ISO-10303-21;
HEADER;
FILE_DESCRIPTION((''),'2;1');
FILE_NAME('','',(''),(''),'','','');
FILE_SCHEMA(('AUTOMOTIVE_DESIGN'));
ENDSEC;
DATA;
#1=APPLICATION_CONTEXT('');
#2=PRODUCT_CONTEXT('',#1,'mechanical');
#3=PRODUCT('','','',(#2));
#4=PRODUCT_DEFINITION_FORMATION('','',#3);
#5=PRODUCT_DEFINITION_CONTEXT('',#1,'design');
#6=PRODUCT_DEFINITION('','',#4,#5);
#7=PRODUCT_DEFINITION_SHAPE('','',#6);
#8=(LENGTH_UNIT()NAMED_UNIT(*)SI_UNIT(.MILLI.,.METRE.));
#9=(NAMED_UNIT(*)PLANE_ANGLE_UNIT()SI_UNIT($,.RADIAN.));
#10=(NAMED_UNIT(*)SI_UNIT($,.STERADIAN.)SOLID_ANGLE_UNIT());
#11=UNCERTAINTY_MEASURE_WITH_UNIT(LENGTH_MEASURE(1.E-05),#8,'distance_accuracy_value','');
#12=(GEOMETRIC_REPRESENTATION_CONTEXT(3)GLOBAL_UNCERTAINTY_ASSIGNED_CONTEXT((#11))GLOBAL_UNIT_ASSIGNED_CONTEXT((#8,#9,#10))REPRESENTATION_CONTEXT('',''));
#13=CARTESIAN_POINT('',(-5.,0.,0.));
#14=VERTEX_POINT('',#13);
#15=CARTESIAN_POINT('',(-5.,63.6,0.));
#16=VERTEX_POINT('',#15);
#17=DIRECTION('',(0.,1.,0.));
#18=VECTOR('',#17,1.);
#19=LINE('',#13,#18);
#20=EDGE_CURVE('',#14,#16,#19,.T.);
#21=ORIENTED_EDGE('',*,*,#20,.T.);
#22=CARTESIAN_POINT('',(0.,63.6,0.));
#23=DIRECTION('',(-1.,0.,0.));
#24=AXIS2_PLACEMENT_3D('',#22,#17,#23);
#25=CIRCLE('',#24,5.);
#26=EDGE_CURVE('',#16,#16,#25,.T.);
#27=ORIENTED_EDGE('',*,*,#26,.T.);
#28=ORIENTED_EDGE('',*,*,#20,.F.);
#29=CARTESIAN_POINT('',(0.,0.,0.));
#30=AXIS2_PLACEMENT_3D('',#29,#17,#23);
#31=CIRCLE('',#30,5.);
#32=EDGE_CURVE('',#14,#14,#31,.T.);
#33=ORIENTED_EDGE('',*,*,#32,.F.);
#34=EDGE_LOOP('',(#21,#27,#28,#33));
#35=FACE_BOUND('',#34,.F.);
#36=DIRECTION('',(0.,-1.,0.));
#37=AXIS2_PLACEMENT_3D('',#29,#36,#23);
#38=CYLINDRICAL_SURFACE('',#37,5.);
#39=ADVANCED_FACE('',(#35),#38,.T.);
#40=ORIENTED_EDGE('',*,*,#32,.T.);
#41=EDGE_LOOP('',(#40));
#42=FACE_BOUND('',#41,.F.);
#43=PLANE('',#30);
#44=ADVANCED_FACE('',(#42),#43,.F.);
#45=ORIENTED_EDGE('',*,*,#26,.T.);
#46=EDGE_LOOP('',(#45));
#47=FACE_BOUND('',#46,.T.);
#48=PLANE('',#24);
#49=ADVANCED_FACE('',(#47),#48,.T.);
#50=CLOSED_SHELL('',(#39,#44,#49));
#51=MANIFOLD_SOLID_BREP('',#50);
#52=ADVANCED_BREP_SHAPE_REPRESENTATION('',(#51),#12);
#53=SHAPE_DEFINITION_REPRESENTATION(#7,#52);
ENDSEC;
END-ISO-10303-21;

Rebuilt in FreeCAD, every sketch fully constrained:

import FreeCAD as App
import Part
import Sketcher
from FreeCAD import Vector

doc = App.newDocument("Part")
params = doc.addObject("Spreadsheet::Sheet", "Params")
for row, (alias, value) in enumerate([
    ("sketch1_diameter", "10 mm"),
    ("pad1_length", "63.6 mm"),
], start=1):
    params.set(f"A{row}", alias)
    params.set(f"B{row}", "=" + value)
    params.setAlias(f"B{row}", alias)

body = doc.addObject("PartDesign::Body", "Body")

sketch1 = doc.addObject("Sketcher::SketchObject", "Sketch")
body.addObject(sketch1)
sketch1.AttachmentSupport = (doc.XZ_Plane, [""])
sketch1.MapMode = "FlatFace"
sketch1.addGeometry(Part.Circle(Vector(0, 0, 0), Vector(0, 0, 1), 5), False)
sketch1.addConstraint([
    Sketcher.Constraint("Coincident", 0, 3, -1, 1),
    Sketcher.Constraint("Diameter", 0, 10.0),
])
sketch1.setExpression("Constraints[1]", "Params.sketch1_diameter")
pad1 = doc.addObject("PartDesign::Pad", "Pad")
body.addObject(pad1)
pad1.Profile = sketch1
pad1.setExpression("Length", "Params.pad1_length")
pad1.Reversed = True

doc.recompute()
